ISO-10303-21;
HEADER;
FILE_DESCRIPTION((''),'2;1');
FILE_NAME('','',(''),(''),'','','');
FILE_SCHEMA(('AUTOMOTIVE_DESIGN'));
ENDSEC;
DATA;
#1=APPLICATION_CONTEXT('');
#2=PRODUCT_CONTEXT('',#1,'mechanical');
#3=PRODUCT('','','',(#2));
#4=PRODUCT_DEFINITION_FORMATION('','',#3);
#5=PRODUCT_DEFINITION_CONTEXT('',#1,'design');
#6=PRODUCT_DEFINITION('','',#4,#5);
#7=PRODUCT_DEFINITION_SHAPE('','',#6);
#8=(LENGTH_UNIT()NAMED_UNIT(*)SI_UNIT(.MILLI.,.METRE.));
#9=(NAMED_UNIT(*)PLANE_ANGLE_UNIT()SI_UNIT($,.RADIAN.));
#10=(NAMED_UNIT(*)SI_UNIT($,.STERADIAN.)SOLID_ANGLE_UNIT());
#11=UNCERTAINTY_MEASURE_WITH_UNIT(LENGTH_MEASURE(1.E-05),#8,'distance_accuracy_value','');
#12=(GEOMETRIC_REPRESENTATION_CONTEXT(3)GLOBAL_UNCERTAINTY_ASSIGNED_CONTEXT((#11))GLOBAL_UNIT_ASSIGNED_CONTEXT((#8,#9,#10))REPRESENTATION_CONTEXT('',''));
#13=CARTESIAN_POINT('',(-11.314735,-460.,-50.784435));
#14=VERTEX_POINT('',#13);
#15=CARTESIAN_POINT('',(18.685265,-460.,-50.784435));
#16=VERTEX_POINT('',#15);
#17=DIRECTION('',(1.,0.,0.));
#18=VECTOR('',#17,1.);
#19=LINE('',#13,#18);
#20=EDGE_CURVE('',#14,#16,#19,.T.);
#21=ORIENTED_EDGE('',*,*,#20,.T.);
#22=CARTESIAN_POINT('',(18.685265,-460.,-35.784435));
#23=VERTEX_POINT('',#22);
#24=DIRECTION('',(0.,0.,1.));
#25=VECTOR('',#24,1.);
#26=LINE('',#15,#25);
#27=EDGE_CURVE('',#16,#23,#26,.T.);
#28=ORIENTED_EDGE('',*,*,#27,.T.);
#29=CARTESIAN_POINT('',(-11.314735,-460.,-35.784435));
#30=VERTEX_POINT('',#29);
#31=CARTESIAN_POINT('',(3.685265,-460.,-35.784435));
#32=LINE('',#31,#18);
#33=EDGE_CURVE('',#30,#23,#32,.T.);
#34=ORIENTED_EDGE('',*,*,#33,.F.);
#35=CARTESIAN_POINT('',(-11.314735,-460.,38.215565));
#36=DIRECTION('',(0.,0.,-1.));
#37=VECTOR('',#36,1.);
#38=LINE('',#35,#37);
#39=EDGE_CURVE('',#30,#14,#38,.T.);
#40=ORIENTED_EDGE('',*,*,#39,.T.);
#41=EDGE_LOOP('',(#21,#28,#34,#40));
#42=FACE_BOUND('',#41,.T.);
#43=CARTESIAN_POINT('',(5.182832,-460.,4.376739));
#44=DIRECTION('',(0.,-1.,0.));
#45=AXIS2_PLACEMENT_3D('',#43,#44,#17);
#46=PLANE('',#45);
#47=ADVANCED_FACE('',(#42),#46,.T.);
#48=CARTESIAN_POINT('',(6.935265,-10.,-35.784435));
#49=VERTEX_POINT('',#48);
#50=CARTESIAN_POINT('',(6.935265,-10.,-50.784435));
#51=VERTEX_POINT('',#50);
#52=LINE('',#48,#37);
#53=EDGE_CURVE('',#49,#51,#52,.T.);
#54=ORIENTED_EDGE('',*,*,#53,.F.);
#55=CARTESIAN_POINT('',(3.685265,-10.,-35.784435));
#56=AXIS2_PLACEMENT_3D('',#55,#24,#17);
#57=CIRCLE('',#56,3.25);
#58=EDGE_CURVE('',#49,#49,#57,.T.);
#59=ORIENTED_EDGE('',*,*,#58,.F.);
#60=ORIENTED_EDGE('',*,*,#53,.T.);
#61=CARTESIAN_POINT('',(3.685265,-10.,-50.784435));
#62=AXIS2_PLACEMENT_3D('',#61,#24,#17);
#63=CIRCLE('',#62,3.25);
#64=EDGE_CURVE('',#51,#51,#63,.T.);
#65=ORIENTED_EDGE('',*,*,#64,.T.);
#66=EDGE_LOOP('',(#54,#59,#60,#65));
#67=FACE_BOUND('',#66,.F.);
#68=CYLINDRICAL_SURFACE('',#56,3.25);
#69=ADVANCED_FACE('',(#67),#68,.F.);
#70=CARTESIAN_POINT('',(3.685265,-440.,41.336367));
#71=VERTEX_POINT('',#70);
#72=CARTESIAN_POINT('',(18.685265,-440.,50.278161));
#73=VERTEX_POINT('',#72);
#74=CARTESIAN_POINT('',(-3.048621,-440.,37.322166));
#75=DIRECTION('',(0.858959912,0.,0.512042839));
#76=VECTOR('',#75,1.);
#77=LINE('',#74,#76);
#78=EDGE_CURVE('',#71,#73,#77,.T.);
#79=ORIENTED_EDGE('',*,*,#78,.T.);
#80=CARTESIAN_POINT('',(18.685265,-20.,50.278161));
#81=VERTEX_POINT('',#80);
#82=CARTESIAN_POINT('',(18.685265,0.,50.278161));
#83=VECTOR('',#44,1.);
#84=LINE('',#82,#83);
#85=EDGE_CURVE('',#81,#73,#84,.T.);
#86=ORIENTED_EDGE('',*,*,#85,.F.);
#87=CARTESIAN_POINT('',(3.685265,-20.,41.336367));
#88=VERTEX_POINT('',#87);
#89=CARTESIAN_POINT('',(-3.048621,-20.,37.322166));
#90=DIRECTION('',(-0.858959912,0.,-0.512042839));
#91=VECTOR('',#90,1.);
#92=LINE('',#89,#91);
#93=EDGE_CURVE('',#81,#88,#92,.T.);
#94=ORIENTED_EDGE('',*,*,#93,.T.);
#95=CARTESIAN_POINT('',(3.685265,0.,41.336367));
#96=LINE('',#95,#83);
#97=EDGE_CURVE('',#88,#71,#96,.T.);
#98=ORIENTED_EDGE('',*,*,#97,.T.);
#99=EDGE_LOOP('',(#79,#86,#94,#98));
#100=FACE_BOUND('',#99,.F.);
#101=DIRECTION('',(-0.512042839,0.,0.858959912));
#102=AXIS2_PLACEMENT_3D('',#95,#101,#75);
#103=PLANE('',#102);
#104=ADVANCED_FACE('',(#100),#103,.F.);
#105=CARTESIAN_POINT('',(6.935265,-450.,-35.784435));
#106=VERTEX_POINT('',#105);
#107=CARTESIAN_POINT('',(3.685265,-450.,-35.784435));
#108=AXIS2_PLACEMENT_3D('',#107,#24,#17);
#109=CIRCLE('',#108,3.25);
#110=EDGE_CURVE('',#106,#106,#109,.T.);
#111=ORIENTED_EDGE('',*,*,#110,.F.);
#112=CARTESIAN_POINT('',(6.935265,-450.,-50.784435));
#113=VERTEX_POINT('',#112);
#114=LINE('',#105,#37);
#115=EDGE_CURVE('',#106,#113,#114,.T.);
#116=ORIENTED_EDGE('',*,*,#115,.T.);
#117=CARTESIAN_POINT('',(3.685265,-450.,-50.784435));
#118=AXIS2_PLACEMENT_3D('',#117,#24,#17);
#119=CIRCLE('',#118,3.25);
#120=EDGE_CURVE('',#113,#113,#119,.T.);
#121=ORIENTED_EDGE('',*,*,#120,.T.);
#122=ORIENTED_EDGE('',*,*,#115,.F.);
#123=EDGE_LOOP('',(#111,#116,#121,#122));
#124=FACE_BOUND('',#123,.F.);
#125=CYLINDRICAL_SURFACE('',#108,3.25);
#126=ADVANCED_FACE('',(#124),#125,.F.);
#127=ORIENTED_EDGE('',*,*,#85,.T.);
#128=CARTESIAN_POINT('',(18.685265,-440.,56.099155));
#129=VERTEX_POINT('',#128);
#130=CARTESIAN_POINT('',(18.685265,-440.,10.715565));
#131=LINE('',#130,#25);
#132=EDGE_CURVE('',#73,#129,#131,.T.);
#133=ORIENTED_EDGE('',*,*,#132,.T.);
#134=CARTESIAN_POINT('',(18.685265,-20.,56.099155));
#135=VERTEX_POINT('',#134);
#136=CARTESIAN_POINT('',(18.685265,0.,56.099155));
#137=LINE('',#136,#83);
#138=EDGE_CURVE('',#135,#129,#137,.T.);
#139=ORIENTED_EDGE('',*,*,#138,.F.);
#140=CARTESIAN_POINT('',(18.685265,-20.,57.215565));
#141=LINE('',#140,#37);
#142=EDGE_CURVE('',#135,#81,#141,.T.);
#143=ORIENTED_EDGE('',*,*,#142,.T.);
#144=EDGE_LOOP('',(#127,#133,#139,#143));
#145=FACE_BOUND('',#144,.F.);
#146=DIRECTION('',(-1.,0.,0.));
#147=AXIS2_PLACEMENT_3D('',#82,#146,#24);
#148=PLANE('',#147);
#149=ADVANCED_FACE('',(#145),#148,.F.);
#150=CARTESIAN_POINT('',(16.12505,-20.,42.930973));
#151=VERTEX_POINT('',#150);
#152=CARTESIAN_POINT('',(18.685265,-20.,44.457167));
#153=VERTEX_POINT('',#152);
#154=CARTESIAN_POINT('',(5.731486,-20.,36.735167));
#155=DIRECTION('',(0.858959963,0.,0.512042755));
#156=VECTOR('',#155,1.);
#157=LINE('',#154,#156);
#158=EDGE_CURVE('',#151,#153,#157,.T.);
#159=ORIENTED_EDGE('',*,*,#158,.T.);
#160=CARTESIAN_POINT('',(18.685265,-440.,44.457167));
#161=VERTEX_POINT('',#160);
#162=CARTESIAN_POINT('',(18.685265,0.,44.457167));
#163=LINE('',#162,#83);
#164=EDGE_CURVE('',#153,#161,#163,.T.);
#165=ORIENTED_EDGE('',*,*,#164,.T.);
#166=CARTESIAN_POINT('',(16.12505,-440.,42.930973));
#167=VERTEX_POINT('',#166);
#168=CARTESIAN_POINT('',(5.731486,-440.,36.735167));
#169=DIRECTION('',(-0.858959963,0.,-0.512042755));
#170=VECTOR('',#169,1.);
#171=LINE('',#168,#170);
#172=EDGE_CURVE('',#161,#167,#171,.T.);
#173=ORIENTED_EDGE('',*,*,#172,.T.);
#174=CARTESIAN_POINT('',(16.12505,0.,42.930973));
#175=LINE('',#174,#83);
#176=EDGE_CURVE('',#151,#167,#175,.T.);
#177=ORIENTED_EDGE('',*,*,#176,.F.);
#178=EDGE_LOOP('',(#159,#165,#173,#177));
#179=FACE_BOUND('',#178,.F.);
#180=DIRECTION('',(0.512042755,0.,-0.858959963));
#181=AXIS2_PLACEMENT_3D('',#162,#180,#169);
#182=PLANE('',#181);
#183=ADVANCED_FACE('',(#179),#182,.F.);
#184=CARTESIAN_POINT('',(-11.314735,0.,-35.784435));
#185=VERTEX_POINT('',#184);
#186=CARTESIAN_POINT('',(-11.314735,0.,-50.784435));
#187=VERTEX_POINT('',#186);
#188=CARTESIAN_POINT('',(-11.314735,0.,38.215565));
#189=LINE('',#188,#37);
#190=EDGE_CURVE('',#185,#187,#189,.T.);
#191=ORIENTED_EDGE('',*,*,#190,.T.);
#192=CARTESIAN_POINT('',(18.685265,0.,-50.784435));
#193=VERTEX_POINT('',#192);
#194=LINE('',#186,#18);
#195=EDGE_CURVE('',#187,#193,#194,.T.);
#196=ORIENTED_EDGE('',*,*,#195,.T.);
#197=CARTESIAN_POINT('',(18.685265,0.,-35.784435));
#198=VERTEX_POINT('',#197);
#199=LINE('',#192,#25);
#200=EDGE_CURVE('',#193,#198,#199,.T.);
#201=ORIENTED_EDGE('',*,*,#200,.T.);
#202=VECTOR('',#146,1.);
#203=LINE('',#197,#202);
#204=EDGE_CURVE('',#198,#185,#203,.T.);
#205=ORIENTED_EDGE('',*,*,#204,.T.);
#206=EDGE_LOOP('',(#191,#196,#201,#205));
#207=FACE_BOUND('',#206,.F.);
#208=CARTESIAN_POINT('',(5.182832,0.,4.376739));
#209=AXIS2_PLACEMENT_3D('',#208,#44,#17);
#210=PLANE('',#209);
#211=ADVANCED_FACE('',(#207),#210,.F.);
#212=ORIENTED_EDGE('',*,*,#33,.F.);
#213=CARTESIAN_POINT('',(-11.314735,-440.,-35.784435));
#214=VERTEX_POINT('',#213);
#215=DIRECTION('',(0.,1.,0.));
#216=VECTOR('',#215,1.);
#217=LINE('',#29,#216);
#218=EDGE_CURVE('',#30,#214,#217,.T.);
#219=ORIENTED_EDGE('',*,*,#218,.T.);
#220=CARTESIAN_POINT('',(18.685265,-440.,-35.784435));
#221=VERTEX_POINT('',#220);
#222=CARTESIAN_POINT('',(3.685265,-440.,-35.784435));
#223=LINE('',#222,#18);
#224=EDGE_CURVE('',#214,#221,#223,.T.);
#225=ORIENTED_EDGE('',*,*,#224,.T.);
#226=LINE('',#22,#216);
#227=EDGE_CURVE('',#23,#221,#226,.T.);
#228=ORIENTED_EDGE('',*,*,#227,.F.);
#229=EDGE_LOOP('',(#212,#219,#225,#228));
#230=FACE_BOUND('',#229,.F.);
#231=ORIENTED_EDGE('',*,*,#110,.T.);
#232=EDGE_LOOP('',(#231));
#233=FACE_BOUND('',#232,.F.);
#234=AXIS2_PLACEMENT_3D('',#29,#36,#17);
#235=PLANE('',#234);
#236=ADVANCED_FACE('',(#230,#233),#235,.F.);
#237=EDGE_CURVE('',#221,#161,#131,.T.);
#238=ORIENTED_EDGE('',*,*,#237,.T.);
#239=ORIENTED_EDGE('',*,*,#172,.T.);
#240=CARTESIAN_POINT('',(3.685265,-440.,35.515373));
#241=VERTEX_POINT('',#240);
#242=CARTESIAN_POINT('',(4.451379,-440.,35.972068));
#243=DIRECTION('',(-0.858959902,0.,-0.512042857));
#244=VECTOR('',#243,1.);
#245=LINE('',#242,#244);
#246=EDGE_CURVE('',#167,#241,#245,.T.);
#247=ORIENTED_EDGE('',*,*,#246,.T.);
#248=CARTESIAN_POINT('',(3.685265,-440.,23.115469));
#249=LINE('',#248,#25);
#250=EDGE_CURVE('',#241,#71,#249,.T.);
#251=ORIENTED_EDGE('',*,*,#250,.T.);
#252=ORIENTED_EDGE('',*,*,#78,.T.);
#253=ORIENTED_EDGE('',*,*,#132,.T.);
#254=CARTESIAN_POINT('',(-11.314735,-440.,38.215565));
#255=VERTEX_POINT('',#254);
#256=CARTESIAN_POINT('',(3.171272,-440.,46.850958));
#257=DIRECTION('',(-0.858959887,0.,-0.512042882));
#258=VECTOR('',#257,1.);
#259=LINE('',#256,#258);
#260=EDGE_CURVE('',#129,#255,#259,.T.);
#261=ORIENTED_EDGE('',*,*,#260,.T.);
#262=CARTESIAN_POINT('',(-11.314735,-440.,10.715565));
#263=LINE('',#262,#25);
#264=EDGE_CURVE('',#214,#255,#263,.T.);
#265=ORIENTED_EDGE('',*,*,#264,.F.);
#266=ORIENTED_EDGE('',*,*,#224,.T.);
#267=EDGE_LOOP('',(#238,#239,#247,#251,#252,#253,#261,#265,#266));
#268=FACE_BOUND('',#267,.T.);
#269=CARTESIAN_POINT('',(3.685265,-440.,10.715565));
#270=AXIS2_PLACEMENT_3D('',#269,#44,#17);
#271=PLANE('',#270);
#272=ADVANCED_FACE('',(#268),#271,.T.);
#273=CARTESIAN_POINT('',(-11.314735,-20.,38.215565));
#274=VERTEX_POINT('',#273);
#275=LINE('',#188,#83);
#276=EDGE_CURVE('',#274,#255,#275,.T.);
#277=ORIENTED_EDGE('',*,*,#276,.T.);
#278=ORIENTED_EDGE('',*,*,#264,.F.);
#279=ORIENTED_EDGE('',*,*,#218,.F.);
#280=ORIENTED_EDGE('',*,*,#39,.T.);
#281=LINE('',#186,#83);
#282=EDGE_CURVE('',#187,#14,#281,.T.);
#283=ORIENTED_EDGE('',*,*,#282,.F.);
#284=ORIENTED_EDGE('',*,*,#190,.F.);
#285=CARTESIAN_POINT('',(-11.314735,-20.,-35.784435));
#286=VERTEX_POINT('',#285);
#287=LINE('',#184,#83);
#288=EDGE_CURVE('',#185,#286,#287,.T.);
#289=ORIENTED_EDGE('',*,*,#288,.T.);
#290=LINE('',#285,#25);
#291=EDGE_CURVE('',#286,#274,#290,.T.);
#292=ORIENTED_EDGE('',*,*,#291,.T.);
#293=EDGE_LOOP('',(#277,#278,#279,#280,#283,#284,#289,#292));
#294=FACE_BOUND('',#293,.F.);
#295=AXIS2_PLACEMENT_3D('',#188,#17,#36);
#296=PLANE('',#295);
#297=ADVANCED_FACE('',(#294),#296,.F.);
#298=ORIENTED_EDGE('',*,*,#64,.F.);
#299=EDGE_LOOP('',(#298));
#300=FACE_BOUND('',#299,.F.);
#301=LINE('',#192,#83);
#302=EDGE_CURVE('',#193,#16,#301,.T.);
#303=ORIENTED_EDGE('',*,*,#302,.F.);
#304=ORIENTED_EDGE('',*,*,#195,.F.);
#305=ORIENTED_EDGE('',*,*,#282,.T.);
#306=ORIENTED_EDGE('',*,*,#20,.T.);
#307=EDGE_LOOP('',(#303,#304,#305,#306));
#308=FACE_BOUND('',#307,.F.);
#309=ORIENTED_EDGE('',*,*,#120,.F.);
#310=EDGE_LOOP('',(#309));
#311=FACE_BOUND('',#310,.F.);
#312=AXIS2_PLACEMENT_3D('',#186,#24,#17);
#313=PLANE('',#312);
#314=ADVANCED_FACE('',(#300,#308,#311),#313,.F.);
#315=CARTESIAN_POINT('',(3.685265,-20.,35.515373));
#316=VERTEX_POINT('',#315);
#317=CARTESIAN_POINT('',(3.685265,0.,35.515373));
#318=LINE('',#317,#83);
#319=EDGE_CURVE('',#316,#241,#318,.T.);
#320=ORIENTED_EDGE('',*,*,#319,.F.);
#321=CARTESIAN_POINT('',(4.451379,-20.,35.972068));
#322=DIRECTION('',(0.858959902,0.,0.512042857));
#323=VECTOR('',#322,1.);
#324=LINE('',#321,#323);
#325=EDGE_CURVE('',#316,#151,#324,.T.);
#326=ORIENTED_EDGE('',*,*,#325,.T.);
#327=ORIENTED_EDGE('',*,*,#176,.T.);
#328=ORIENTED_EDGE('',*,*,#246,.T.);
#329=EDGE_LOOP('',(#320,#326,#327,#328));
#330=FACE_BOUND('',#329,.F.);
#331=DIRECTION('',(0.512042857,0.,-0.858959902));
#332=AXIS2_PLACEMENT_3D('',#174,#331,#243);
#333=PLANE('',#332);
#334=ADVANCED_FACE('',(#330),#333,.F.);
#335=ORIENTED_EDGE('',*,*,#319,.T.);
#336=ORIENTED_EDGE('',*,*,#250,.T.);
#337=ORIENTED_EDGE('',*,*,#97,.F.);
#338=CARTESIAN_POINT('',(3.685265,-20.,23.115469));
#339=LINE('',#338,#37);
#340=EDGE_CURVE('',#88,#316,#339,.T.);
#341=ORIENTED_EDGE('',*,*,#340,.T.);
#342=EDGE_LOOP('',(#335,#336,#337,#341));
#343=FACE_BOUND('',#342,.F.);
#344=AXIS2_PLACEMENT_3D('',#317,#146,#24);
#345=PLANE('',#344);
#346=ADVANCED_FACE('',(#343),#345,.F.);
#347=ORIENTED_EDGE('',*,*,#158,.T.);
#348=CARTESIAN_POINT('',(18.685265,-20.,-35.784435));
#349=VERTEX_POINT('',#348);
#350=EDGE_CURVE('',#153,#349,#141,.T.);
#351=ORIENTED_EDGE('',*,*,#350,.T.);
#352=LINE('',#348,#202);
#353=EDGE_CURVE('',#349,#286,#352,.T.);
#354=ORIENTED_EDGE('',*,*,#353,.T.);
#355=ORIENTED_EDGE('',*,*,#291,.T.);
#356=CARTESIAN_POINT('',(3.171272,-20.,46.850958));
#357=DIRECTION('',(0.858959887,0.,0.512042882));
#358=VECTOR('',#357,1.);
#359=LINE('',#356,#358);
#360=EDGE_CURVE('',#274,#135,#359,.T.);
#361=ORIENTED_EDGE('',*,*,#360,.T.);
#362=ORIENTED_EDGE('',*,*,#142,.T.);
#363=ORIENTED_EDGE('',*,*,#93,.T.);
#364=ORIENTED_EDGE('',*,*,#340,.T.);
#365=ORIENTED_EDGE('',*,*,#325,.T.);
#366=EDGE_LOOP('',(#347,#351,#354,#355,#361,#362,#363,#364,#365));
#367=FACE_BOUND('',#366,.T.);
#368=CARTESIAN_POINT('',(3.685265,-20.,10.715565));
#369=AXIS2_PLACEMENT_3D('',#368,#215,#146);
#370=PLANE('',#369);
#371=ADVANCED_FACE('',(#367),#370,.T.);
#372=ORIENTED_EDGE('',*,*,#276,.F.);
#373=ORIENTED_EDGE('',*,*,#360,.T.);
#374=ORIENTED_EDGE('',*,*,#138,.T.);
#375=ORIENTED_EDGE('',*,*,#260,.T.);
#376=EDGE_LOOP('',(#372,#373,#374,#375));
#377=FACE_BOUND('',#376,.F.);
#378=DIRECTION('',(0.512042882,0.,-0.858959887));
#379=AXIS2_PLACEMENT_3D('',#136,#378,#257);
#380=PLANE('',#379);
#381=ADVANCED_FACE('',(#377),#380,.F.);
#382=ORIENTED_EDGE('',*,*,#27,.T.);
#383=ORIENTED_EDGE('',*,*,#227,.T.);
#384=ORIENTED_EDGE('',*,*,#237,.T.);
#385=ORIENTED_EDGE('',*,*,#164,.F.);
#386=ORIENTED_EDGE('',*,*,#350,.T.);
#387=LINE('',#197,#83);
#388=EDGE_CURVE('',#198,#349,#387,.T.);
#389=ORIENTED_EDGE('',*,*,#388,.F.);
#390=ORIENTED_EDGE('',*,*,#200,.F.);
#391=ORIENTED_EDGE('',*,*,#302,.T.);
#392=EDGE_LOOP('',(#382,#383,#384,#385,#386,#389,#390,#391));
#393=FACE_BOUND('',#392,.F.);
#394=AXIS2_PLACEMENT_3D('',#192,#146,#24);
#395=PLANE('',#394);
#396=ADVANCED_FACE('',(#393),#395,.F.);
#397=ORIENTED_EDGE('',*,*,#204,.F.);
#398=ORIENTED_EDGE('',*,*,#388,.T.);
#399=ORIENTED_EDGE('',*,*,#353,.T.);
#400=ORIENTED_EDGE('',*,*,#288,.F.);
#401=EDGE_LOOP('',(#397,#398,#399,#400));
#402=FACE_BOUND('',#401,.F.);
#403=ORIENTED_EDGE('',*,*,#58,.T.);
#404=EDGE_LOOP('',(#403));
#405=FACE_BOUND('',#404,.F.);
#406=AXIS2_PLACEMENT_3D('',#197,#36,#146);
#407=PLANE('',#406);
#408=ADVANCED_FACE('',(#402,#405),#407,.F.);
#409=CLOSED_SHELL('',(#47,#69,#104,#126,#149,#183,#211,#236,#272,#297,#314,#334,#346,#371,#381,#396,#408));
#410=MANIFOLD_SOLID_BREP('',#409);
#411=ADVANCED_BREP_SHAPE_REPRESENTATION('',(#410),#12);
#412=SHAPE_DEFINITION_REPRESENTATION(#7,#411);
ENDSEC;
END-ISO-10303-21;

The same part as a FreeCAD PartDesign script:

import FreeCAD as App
import Part
import Sketcher

V = App.Vector
Q = App.Units.Quantity


def add_polygon(sketch, points):
    """Adds a closed chain of lines whose ends are joined by coincident constraints."""
    first, n = sketch.GeometryCount, len(points)
    for a, b in zip(points, points[1:] + points[:1]):
        sketch.addGeometry(Part.LineSegment(App.Vector(*a, 0), App.Vector(*b, 0)), False)
    for i in range(n):
        sketch.addConstraint(Sketcher.Constraint("Coincident", first + i, 2, first + (i + 1) % n, 1))

doc = App.newDocument("Part")
body = doc.addObject("PartDesign::Body", "Body")

# Sketch on XZ plane
sketch1 = body.newObject("Sketcher::SketchObject", "Sketch")
sketch1.AttachmentSupport = (doc.getObject("XZ_Plane"), [""])
sketch1.MapMode = "FlatFace"
add_polygon(sketch1, [(18.7, 56.1), (-11.3, 38.2), (-11.3, -50.8), (18.7, -50.8), (18.7, 44.5), (16.1, 42.9), (3.7, 35.5), (3.7, 41.3), (18.7, 50.3)])  # lines 0-8
sketch1.addConstraint([
    Sketcher.Constraint("Vertical", 1),
    Sketcher.Constraint("Horizontal", 2),
    Sketcher.Constraint("Vertical", 3),
    Sketcher.Constraint("Vertical", 6),
    Sketcher.Constraint("Vertical", 8),
    Sketcher.Constraint("Parallel", 0, 4),
    Sketcher.Constraint("Parallel", 4, 5),
    Sketcher.Constraint("Parallel", 5, 7),
    Sketcher.Constraint("Vertical", 3, 2, 7, 2),
    Sketcher.Constraint("Equal", 6, 8),
    Sketcher.Constraint("DistanceX", 2, 1, 2, 2, Q("30 mm")),
    Sketcher.Constraint("DistanceY", 1, 2, 1, 1, Q("89 mm")),
    Sketcher.Constraint("Angle", 0, Q("-149.199999 deg")),
    Sketcher.Constraint("DistanceX", 0, 2, 5, 2, Q("15 mm")),
    Sketcher.Constraint("DistanceY", 3, 1, 3, 2, Q("95.241602 mm")),
    Sketcher.Constraint("Distance", 4, Q("2.980599 mm")),
    Sketcher.Constraint("DistanceX", -1, 1, 4, 2, Q("16.12505 mm")),
    Sketcher.Constraint("DistanceY", -1, 1, 7, 2, Q("50.278161 mm")),
])
pad1 = body.newObject("PartDesign::Pad", "Pad")
pad1.Profile = sketch1
pad1.Length = 460

# Sketch on XZ plane
sketch2 = body.newObject("Sketcher::SketchObject", "Sketch001")
sketch2.AttachmentSupport = (doc.getObject("XZ_Plane"), [""])
sketch2.MapMode = "FlatFace"
sketch2.AttachmentOffset = App.Placement(V(0, 0, 460), App.Rotation())
add_polygon(sketch2, [(-11, 57), (-11, -36), (19, -36), (19, 57)])  # lines 0-3
sketch2.addConstraint([
    Sketcher.Constraint("Vertical", 0),
    Sketcher.Constraint("Horizontal", 1),
    Sketcher.Constraint("Vertical", 2),
    Sketcher.Constraint("Horizontal", 3),
    Sketcher.Constraint("DistanceX", 1, 1, 1, 2, Q("30 mm")),
    Sketcher.Constraint("DistanceY", 0, 2, 0, 1, Q("93 mm")),
    Sketcher.Constraint("DistanceX", 0, 2, -1, 1, Q("11.314735 mm")),
    Sketcher.Constraint("DistanceY", 0, 2, -1, 1, Q("35.784435 mm")),
])
pocket1 = body.newObject("PartDesign::Pocket", "Pocket")
pocket1.Profile = sketch2
pocket1.Length = 20

# Sketch on XZ plane
sketch3 = body.newObject("Sketcher::SketchObject", "Sketch002")
sketch3.AttachmentSupport = (doc.getObject("XZ_Plane"), [""])
sketch3.MapMode = "FlatFace"
add_polygon(sketch3, [(19, 57), (19, -36), (-11, -36), (-11, 57)])  # lines 0-3
sketch3.addConstraint([
    Sketcher.Constraint("Vertical", 0),
    Sketcher.Constraint("Horizontal", 1),
    Sketcher.Constraint("Vertical", 2),
    Sketcher.Constraint("Horizontal", 3),
    Sketcher.Constraint("DistanceX", 1, 2, 1, 1, Q("30 mm")),
    Sketcher.Constraint("DistanceY", 0, 2, 0, 1, Q("93 mm")),
    Sketcher.Constraint("DistanceX", -1, 1, 0, 2, Q("18.685265 mm")),
    Sketcher.Constraint("DistanceY", 0, 2, -1, 1, Q("35.784435 mm")),
])
pocket2 = body.newObject("PartDesign::Pocket", "Pocket001")
pocket2.Profile = sketch3
pocket2.Length = 20
pocket2.Reversed = True

# Sketch on XY plane
sketch4 = body.newObject("Sketcher::SketchObject", "Sketch003")
sketch4.AttachmentSupport = (doc.getObject("XY_Plane"), [""])
sketch4.MapMode = "FlatFace"
sketch4.AttachmentOffset = App.Placement(V(0, 0, -35.784435), App.Rotation())
sketch4.addGeometry([
    Part.Circle(V(3.7, -10, 0), V(0, 0, 1), 3.2),
    Part.Circle(V(3.7, -450, 0), V(0, 0, 1), 3.2),
], False)
sketch4.addConstraint([
    Sketcher.Constraint("Equal", 0, 1),
    Sketcher.Constraint("Vertical", 0, 3, 1, 3),
    Sketcher.Constraint("Diameter", 0, Q("6.5 mm")),
    Sketcher.Constraint("DistanceY", 0, 3, -1, 1, Q("10 mm")),
    Sketcher.Constraint("DistanceY", 1, 3, -1, 1, Q("450 mm")),
    Sketcher.Constraint("DistanceX", -1, 1, 0, 3, Q("3.685265 mm")),
])
pocket3 = body.newObject("PartDesign::Pocket", "Pocket002")
pocket3.Profile = sketch4
pocket3.Type = "ThroughAll"

doc.recompute()
